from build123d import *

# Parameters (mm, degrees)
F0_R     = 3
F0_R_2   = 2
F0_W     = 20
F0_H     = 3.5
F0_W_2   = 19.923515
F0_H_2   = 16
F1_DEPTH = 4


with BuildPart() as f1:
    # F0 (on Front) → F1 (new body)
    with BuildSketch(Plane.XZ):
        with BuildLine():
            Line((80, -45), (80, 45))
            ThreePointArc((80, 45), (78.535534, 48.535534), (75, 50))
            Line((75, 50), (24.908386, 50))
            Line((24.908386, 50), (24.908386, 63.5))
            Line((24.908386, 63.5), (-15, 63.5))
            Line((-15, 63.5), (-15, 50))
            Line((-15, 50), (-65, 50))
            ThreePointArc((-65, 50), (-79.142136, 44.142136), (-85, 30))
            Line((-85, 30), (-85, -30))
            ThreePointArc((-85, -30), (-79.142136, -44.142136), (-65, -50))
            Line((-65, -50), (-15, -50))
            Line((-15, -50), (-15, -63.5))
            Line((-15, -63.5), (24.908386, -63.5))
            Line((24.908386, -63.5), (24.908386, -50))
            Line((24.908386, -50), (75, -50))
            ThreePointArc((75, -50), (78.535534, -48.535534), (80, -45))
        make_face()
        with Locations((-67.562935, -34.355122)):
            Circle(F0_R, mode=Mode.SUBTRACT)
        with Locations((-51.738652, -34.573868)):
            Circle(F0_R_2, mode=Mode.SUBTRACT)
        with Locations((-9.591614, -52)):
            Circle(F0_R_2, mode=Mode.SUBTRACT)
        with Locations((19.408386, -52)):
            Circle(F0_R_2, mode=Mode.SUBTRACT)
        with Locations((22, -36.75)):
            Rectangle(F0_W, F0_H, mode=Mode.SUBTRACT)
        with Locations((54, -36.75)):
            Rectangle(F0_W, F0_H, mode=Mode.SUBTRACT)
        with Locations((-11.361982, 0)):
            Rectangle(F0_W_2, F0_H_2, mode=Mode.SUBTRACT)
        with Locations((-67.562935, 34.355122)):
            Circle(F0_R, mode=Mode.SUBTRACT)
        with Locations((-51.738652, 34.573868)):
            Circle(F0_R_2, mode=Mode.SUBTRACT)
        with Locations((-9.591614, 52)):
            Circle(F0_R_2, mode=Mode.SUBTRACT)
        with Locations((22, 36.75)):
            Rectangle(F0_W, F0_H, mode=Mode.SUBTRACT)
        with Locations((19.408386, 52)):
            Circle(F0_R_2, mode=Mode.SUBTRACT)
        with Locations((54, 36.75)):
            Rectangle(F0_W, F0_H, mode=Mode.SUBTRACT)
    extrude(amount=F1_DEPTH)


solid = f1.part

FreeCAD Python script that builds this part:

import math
import FreeCAD as App
import Part
import Sketcher

V = App.Vector
Q = App.Units.Quantity

doc = App.newDocument("Part")
params = doc.addObject("Spreadsheet::Sheet", "Params")
for row, (alias, value) in enumerate([
    ("sketch1_diameter", "6 mm"),
    ("sketch1_diameter2", "4 mm"),
    ("sketch1_radius", "5 mm"),
    ("sketch1_radius2", "19.999999 mm"),
    ("sketch1_width", "50 mm"),
    ("pad1_length", "4 mm"),
], start=1):
    params.set(f"A{row}", alias)
    params.set(f"B{row}", "=" + value)
    params.setAlias(f"B{row}", alias)

body = doc.addObject("PartDesign::Body", "Body")

sketch1 = body.newObject("Sketcher::SketchObject", "Sketch")
sketch1.AttachmentSupport = (doc.getObject("XZ_Plane"), [""])
sketch1.MapMode = "FlatFace"
sketch1.addGeometry([
    Part.LineSegment(V(80, -45, 0), V(80, 45, 0)),
    Part.ArcOfCircle(Part.Circle(V(75, 45, 0), V(0, 0, 1), 5), math.radians(0), math.radians(90)),
    Part.LineSegment(V(75, 50, 0), V(24.9, 50, 0)),
    Part.LineSegment(V(24.9, 50, 0), V(24.9, 63.5, 0)),
    Part.LineSegment(V(24.9, 63.5, 0), V(-15, 63.5, 0)),
    Part.LineSegment(V(-15, 63.5, 0), V(-15, 50, 0)),
    Part.LineSegment(V(-15, 50, 0), V(-65, 50, 0)),
    Part.ArcOfCircle(Part.Circle(V(-65, 30, 0), V(0, 0, 1), 20), math.radians(90), math.radians(180)),
    Part.LineSegment(V(-85, 30, 0), V(-85, -30, 0)),
    Part.ArcOfCircle(Part.Circle(V(-65, -30, 0), V(0, 0, 1), 20), math.radians(180), math.radians(270)),
    Part.LineSegment(V(-65, -50, 0), V(-15, -50, 0)),
    Part.LineSegment(V(-15, -50, 0), V(-15, -63.5, 0)),
    Part.LineSegment(V(-15, -63.5, 0), V(24.9, -63.5, 0)),
    Part.LineSegment(V(24.9, -63.5, 0), V(24.9, -50, 0)),
    Part.LineSegment(V(24.9, -50, 0), V(75, -50, 0)),
    Part.ArcOfCircle(Part.Circle(V(75, -45, 0), V(0, 0, 1), 5), math.radians(-90), math.radians(0)),
    Part.Circle(V(-67.6, -34.4, 0), V(0, 0, 1), 3),
    Part.Circle(V(-51.7, -34.6, 0), V(0, 0, 1), 2),
    Part.Circle(V(-9.6, -52, 0), V(0, 0, 1), 2),
    Part.Circle(V(19.4, -52, 0), V(0, 0, 1), 2),
    Part.LineSegment(V(32, -38.5, 0), V(12, -38.5, 0)),
    Part.LineSegment(V(12, -38.5, 0), V(12, -35, 0)),
    Part.LineSegment(V(12, -35, 0), V(32, -35, 0)),
    Part.LineSegment(V(32, -35, 0), V(32, -38.5, 0)),
    Part.LineSegment(V(64, -38.5, 0), V(44, -38.5, 0)),
    Part.LineSegment(V(44, -38.5, 0), V(44, -35, 0)),
    Part.LineSegment(V(44, -35, 0), V(64, -35, 0)),
    Part.LineSegment(V(64, -35, 0), V(64, -38.5, 0)),
    Part.LineSegment(V(-1.4, -8, 0), V(-21.3, -8, 0)),
    Part.LineSegment(V(-21.3, -8, 0), V(-21.3, 8, 0)),
    Part.LineSegment(V(-21.3, 8, 0), V(-1.4, 8, 0)),
    Part.LineSegment(V(-1.4, 8, 0), V(-1.4, -8, 0)),
    Part.Circle(V(-67.6, 34.4, 0), V(0, 0, 1), 3),
    Part.Circle(V(-51.7, 34.6, 0), V(0, 0, 1), 2),
    Part.Circle(V(-9.6, 52, 0), V(0, 0, 1), 2),
    Part.LineSegment(V(32, 35, 0), V(12, 35, 0)),
    Part.LineSegment(V(12, 35, 0), V(12, 38.5, 0)),
    Part.LineSegment(V(12, 38.5, 0), V(32, 38.5, 0)),
    Part.LineSegment(V(32, 38.5, 0), V(32, 35, 0)),
    Part.Circle(V(19.4, 52, 0), V(0, 0, 1), 2),
    Part.LineSegment(V(64, 35, 0), V(44, 35, 0)),
    Part.LineSegment(V(44, 35, 0), V(44, 38.5, 0)),
    Part.LineSegment(V(44, 38.5, 0), V(64, 38.5, 0)),
    Part.LineSegment(V(64, 38.5, 0), V(64, 35, 0)),
], False)
sketch1.addConstraint([
    Sketcher.Constraint("Tangent", 0, 2, 1, 1),
    Sketcher.Constraint("Tangent", 1, 2, 2, 1),
    Sketcher.Constraint("Coincident", 2, 2, 3, 1),
    Sketcher.Constraint("Coincident", 3, 2, 4, 1),
    Sketcher.Constraint("Coincident", 4, 2, 5, 1),
    Sketcher.Constraint("Coincident", 5, 2, 6, 1),
    Sketcher.Constraint("Tangent", 6, 2, 7, 1),
    Sketcher.Constraint("Tangent", 7, 2, 8, 1),
    Sketcher.Constraint("Tangent", 8, 2, 9, 1),
    Sketcher.Constraint("Tangent", 9, 2, 10, 1),
    Sketcher.Constraint("Coincident", 10, 2, 11, 1),
    Sketcher.Constraint("Coincident", 11, 2, 12, 1),
    Sketcher.Constraint("Coincident", 12, 2, 13, 1),
    Sketcher.Constraint("Coincident", 13, 2, 14, 1),
    Sketcher.Constraint("Tangent", 14, 2, 15, 1),
    Sketcher.Constraint("Tangent", 15, 2, 0, 1),
    Sketcher.Constraint("Coincident", 20, 2, 21, 1),
    Sketcher.Constraint("Coincident", 21, 2, 22, 1),
    Sketcher.Constraint("Coincident", 22, 2, 23, 1),
    Sketcher.Constraint("Coincident", 23, 2, 20, 1),
    Sketcher.Constraint("Coincident", 24, 2, 25, 1),
    Sketcher.Constraint("Coincident", 25, 2, 26, 1),
    Sketcher.Constraint("Coincident", 26, 2, 27, 1),
    Sketcher.Constraint("Coincident", 27, 2, 24, 1),
    Sketcher.Constraint("Coincident", 28, 2, 29, 1),
    Sketcher.Constraint("Coincident", 29, 2, 30, 1),
    Sketcher.Constraint("Coincident", 30, 2, 31, 1),
    Sketcher.Constraint("Coincident", 31, 2, 28, 1),
    Sketcher.Constraint("Coincident", 35, 2, 36, 1),
    Sketcher.Constraint("Coincident", 36, 2, 37, 1),
    Sketcher.Constraint("Coincident", 37, 2, 38, 1),
    Sketcher.Constraint("Coincident", 38, 2, 35, 1),
    Sketcher.Constraint("Coincident", 40, 2, 41, 1),
    Sketcher.Constraint("Coincident", 41, 2, 42, 1),
    Sketcher.Constraint("Coincident", 42, 2, 43, 1),
    Sketcher.Constraint("Coincident", 43, 2, 40, 1),
    Sketcher.Constraint("Vertical", 0),
    Sketcher.Constraint("Horizontal", 2),
    Sketcher.Constraint("Vertical", 3),
    Sketcher.Constraint("Horizontal", 4),
    Sketcher.Constraint("Vertical", 5),
    Sketcher.Constraint("Horizontal", 6),
    Sketcher.Constraint("Vertical", 8),
    Sketcher.Constraint("Horizontal", 10),
    Sketcher.Constraint("Vertical", 11),
    Sketcher.Constraint("Horizontal", 12),
    Sketcher.Constraint("Vertical", 13),
    Sketcher.Constraint("Horizontal", 14),
    Sketcher.Constraint("Horizontal", 20),
    Sketcher.Constraint("Vertical", 21),
    Sketcher.Constraint("Horizontal", 22),
    Sketcher.Constraint("Vertical", 23),
    Sketcher.Constraint("Horizontal", 24),
    Sketcher.Constraint("Vertical", 25),
    Sketcher.Constraint("Horizontal", 26),
    Sketcher.Constraint("Vertical", 27),
    Sketcher.Constraint("Horizontal", 28),
    Sketcher.Constraint("Vertical", 29),
    Sketcher.Constraint("Horizontal", 30),
    Sketcher.Constraint("Vertical", 31),
    Sketcher.Constraint("Horizontal", 35),
    Sketcher.Constraint("Vertical", 36),
    Sketcher.Constraint("Horizontal", 37),
    Sketcher.Constraint("Vertical", 38),
    Sketcher.Constraint("Horizontal", 40),
    Sketcher.Constraint("Vertical", 41),
    Sketcher.Constraint("Horizontal", 42),
    Sketcher.Constraint("Vertical", 43),
    Sketcher.Constraint("Equal", 7, 9),
    Sketcher.Constraint("Equal", 1, 15),
    Sketcher.Constraint("Equal", 17, 18),
    Sketcher.Constraint("Equal", 18, 19),
    Sketcher.Constraint("Equal", 16, 32),
    Sketcher.Constraint("Equal", 19, 33),
    Sketcher.Constraint("Equal", 33, 34),
    Sketcher.Constraint("Equal", 34, 39),
    Sketcher.Constraint("Symmetric", 16, 3, 32, 3, -1),
    Sketcher.Constraint("Symmetric", 17, 3, 33, 3, -1),
    Sketcher.Constraint("Symmetric", 18, 3, 34, 3, -1),
    Sketcher.Constraint("Symmetric", 19, 3, 39, 3, -1),
    Sketcher.Constraint("Symmetric", 5, 2, 10, 2, -1),
    Sketcher.Constraint("Symmetric", 3, 2, 12, 2, -1),
    Sketcher.Constraint("Symmetric", 21, 2, 35, 2, -1),
    Sketcher.Constraint("Symmetric", 23, 2, 37, 2, -1),
    Sketcher.Constraint("Symmetric", 25, 2, 40, 2, -1),
    Sketcher.Constraint("Symmetric", 27, 2, 42, 2, -1),
    Sketcher.Constraint("Horizontal", 18, 3, 19, 3),
    Sketcher.Constraint("Horizontal", 2, 2, 5, 2),
    Sketcher.Constraint("Horizontal", 10, 2, 13, 2),
    Sketcher.Constraint("Horizontal", 23, 2, 24, 2),
    Sketcher.Constraint("Horizontal", 22, 2, 25, 2),
    Sketcher.Constraint("Equal", 22, 24),
    Sketcher.Constraint("Diameter", 16, Q("6 mm")),
    Sketcher.Constraint("Diameter", 17, Q("4 mm")),
    Sketcher.Constraint("Radius", 1, Q("5 mm")),
    Sketcher.Constraint("Radius", 7, Q("19.999999 mm")),
    Sketcher.Constraint("DistanceX", 6, 2, 6, 1, Q("50 mm")),
    Sketcher.Constraint("DistanceX", 20, 2, 20, 1, Q("20 mm")),
    Sketcher.Constraint("DistanceY", 0, 1, 0, 2, Q("90 mm")),
    Sketcher.Constraint("DistanceY", 29, 1, 29, 2, Q("16 mm")),
    Sketcher.Constraint("DistanceY", 3, 1, 3, 2, Q("13.5 mm")),
    Sketcher.Constraint("DistanceY", 21, 1, 21, 2, Q("3.5 mm")),
    Sketcher.Constraint("DistanceX", -1, 1, 1, 3, Q("75 mm")),
    Sketcher.Constraint("DistanceX", 7, 3, -1, 1, Q("65.000001 mm")),
    Sketcher.Constraint("DistanceY", 18, 3, -1, 1, Q("52 mm")),
    Sketcher.Constraint("DistanceX", -1, 1, 20, 2, Q("12 mm")),
    Sketcher.Constraint("DistanceY", 21, 2, -1, 1, Q("35 mm")),
    Sketcher.Constraint("DistanceX", -1, 1, 24, 2, Q("44 mm")),
    Sketcher.Constraint("DistanceY", 28, 2, -1, 1, Q("8 mm")),
    Sketcher.Constraint("DistanceX", 18, 3, 19, 3, Q("29 mm")),
    Sketcher.Constraint("DistanceX", 39, 3, 2, 2, Q("5.5 mm")),
    Sketcher.Constraint("DistanceX", 2, 2, 2, 1, Q("50.091614 mm")),
    Sketcher.Constraint("DistanceX", 28, 2, 28, 1, Q("19.923515 mm")),
    Sketcher.Constraint("DistanceX", 28, 2, -1, 1, Q("21.323739 mm")),
    Sketcher.Constraint("DistanceY", 16, 3, 9, 3, Q("4.355121 mm")),
    Sketcher.Constraint("DistanceX", 9, 3, 17, 3, Q("13.261349 mm")),
    Sketcher.Constraint("DistanceY", 17, 3, 7, 3, Q("64.573869 mm")),
    Sketcher.Constraint("DistanceX", 16, 3, 18, 3, Q("57.971321 mm")),
])
sketch1.setExpression("Constraints[92]", "Params.sketch1_diameter")
sketch1.setExpression("Constraints[93]", "Params.sketch1_diameter2")
sketch1.setExpression("Constraints[94]", "Params.sketch1_radius")
sketch1.setExpression("Constraints[95]", "Params.sketch1_radius2")
sketch1.setExpression("Constraints[96]", "Params.sketch1_width")
pad1 = body.newObject("PartDesign::Pad", "Pad")
pad1.Profile = sketch1
pad1.setExpression("Length", "Params.pad1_length")

doc.recompute()
